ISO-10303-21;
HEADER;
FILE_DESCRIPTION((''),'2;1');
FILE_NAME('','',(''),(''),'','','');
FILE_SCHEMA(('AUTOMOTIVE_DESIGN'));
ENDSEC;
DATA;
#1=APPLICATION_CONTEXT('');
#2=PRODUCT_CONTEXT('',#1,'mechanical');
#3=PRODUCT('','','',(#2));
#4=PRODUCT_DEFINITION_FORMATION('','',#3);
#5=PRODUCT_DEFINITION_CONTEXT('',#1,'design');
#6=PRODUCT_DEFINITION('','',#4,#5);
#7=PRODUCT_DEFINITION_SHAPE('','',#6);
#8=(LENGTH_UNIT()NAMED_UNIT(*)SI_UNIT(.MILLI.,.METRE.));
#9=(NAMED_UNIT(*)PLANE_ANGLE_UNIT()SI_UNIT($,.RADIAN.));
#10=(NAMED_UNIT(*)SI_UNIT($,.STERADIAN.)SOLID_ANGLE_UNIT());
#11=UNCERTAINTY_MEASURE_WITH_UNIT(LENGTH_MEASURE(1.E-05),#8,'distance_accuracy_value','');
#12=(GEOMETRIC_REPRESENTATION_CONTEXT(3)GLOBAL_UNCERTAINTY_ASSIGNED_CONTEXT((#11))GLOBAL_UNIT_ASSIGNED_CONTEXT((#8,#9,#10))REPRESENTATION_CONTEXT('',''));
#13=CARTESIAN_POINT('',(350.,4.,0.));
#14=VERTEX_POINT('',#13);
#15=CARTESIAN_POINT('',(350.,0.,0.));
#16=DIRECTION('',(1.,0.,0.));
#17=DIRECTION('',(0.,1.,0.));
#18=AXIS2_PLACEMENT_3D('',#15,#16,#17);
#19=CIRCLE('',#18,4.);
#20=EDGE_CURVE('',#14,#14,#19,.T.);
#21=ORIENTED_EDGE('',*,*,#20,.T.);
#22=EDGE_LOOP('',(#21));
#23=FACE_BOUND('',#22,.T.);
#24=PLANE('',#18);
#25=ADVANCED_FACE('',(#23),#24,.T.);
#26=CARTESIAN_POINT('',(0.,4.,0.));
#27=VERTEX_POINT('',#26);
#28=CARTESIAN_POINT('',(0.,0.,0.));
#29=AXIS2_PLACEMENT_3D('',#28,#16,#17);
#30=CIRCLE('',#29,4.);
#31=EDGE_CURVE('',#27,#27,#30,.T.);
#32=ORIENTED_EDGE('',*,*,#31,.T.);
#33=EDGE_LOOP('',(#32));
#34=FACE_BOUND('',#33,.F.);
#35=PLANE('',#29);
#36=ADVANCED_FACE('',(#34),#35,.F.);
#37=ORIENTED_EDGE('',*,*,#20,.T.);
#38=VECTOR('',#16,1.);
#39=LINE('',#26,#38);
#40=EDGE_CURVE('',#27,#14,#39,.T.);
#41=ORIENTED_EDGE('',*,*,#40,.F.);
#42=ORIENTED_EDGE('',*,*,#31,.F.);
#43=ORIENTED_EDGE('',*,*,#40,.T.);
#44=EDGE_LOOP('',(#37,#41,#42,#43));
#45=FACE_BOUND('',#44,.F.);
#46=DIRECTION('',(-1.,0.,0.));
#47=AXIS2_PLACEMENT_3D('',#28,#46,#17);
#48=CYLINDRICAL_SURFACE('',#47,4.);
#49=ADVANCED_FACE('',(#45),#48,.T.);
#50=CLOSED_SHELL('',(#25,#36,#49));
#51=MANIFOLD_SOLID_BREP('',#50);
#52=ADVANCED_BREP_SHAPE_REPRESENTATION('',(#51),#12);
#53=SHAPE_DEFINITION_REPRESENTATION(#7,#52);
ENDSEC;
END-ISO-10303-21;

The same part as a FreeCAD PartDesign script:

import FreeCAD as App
import Part
import Sketcher
from FreeCAD import Vector
Q = App.Units.Quantity

doc = App.newDocument("Part")
body = doc.addObject("PartDesign::Body", "Body")

# Sketch on YZ plane
sketch1 = body.newObject("Sketcher::SketchObject", "Sketch")
sketch1.AttachmentSupport = (doc.getObject("YZ_Plane"), [""])
sketch1.MapMode = "FlatFace"
sketch1.addGeometry(Part.Circle(Vector(0, 0, 0), Vector(0, 0, 1), 4), False)
sketch1.addConstraint(Sketcher.Constraint("Coincident", 0, 3, -1, 1))
sketch1.addConstraint(Sketcher.Constraint("Diameter", 0, Q("8 mm")))
pad1 = body.newObject("PartDesign::Pad", "Pad")
pad1.Profile = sketch1
pad1.Length = 350

doc.recompute()
